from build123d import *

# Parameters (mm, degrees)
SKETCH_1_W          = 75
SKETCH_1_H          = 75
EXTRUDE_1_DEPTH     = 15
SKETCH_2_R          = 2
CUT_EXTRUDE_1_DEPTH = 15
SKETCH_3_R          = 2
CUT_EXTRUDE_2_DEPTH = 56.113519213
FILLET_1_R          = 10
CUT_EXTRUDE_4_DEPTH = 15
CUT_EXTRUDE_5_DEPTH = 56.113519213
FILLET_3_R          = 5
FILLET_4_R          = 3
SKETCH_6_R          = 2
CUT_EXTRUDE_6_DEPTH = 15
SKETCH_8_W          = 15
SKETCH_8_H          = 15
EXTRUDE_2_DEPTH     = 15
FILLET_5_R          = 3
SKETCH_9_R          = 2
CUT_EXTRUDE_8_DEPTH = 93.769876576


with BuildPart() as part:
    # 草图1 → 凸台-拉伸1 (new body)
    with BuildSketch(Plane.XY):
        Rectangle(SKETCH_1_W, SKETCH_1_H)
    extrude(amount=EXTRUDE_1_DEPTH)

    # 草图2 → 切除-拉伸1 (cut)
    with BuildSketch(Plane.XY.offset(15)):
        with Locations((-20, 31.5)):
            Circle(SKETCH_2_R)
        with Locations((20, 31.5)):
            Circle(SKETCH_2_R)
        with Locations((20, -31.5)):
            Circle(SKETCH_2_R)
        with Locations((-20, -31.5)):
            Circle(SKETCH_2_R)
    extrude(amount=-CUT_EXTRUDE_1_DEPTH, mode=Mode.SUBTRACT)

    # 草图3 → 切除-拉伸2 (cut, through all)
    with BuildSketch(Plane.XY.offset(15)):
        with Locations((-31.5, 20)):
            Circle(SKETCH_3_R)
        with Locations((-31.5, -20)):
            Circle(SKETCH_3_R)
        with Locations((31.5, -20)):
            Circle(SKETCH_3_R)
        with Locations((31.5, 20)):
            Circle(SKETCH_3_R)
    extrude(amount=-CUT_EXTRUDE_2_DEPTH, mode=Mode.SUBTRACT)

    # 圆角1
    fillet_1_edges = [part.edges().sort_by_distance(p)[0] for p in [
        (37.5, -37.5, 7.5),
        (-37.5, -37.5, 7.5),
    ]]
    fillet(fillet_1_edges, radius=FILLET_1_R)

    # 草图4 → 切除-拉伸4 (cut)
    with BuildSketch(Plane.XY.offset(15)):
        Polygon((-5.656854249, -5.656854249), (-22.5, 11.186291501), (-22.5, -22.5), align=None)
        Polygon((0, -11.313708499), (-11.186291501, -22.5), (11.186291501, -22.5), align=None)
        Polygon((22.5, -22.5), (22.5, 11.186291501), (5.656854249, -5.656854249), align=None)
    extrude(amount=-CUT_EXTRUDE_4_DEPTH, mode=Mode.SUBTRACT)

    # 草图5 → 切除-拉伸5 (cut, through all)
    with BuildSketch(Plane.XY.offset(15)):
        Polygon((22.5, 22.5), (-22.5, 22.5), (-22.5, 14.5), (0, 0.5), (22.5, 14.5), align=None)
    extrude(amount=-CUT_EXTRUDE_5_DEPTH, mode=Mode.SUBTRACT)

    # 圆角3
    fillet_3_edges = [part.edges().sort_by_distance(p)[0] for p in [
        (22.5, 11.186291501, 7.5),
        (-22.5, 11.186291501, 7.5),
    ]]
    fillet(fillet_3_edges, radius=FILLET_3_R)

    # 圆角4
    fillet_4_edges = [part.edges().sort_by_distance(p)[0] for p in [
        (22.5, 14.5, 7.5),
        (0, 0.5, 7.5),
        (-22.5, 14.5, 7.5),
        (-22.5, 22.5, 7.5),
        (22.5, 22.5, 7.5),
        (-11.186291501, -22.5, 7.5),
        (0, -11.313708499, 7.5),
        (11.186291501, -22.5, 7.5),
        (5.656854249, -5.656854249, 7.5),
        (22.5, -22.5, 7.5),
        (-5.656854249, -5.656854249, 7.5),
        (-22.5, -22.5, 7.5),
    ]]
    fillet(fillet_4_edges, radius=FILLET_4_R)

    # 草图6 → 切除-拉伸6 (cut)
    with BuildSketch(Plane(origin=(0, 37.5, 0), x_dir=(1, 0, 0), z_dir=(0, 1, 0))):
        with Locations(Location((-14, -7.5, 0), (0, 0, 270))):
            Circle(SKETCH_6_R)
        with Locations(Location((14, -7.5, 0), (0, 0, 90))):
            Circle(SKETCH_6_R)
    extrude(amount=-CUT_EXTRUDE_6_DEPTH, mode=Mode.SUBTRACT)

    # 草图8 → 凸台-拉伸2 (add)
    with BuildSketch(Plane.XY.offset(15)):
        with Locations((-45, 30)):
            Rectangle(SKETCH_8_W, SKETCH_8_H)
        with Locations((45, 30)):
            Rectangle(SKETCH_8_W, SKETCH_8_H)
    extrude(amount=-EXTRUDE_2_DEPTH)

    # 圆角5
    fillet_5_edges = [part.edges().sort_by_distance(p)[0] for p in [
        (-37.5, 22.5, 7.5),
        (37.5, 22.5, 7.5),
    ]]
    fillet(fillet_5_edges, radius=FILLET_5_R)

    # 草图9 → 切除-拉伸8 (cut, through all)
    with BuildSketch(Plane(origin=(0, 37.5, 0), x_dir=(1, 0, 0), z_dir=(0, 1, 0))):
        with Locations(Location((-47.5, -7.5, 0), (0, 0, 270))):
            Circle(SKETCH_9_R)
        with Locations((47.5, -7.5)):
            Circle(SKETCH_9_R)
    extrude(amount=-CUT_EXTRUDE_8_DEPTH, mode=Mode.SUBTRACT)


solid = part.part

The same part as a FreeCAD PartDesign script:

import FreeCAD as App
import Part
import Sketcher
from FreeCAD import Vector


def edges_at(feature, points):
    """Names of the edges that pass closest to the given points."""
    edges = feature.Shape.Edges
    near = lambda p: min(range(len(edges)), key=lambda i: edges[i].distToShape(Part.Vertex(*p))[0])
    return sorted({f"Edge{near(p) + 1}" for p in points})


def add_polygon(sketch, points):
    """Adds a closed chain of lines whose ends are joined by coincident constraints."""
    first, n = sketch.GeometryCount, len(points)
    for a, b in zip(points, points[1:] + points[:1]):
        sketch.addGeometry(Part.LineSegment(App.Vector(*a, 0), App.Vector(*b, 0)), False)
    for i in range(n):
        sketch.addConstraint(Sketcher.Constraint("Coincident", first + i, 2, first + (i + 1) % n, 1))

doc = App.newDocument("Part")
body = doc.addObject("PartDesign::Body", "Body")

# Sketch on XY plane
sketch1 = body.newObject("Sketcher::SketchObject", "Sketch")
sketch1.AttachmentSupport = (doc.getObject("XY_Plane"), [""])
sketch1.MapMode = "FlatFace"
add_polygon(sketch1, [(-38, 38), (-38, -38), (38, -38), (38, 38)])  # lines 0-3
sketch1.addConstraint([
    Sketcher.Constraint("Vertical", 0),
    Sketcher.Constraint("Horizontal", 1),
    Sketcher.Constraint("Vertical", 2),
    Sketcher.Constraint("Horizontal", 3),
    Sketcher.Constraint("Symmetric", 0, 2, 2, 2, -1, 1),
    Sketcher.Constraint("Equal", 3, 0),
    Sketcher.Constraint("DistanceX", 1, 1, 1, 2, 75.0),
])
pad1 = body.newObject("PartDesign::Pad", "Pad")
pad1.Profile = sketch1
pad1.Length = 15

# Sketch on XY plane
sketch2 = body.newObject("Sketcher::SketchObject", "Sketch001")
sketch2.AttachmentSupport = (doc.getObject("XY_Plane"), [""])
sketch2.MapMode = "FlatFace"
sketch2.AttachmentOffset = App.Placement(Vector(0, 0, 15), App.Rotation())
sketch2.addGeometry([
    Part.Circle(Vector(-20, 31.5, 0), Vector(0, 0, 1), 2),
    Part.Circle(Vector(20, 31.5, 0), Vector(0, 0, 1), 2),
    Part.Circle(Vector(20, -31.5, 0), Vector(0, 0, 1), 2),
    Part.Circle(Vector(-20, -31.5, 0), Vector(0, 0, 1), 2),
], False)
sketch2.addConstraint([
    Sketcher.Constraint("Equal", 0, 1),
    Sketcher.Constraint("Equal", 1, 2),
    Sketcher.Constraint("Equal", 2, 3),
    Sketcher.Constraint("Symmetric", 0, 3, 2, 3, -1, 1),
    Sketcher.Constraint("Symmetric", 1, 3, 3, 3, -1, 1),
    Sketcher.Constraint("Symmetric", 0, 3, 1, 3, -2),
    Sketcher.Constraint("Diameter", 0, 4.0),
    Sketcher.Constraint("DistanceX", 0, 3, -1, 1, 20.0),
    Sketcher.Constraint("DistanceY", 2, 3, 1, 3, 63.0),
])
pocket1 = body.newObject("PartDesign::Pocket", "Pocket")
pocket1.Profile = sketch2
pocket1.Length = 15

# Sketch on XY plane
sketch3 = body.newObject("Sketcher::SketchObject", "Sketch002")
sketch3.AttachmentSupport = (doc.getObject("XY_Plane"), [""])
sketch3.MapMode = "FlatFace"
sketch3.AttachmentOffset = App.Placement(Vector(0, 0, 15), App.Rotation())
sketch3.addGeometry([
    Part.Circle(Vector(-31.5, 20, 0), Vector(0, 0, 1), 2),
    Part.Circle(Vector(-31.5, -20, 0), Vector(0, 0, 1), 2),
    Part.Circle(Vector(31.5, -20, 0), Vector(0, 0, 1), 2),
    Part.Circle(Vector(31.5, 20, 0), Vector(0, 0, 1), 2),
], False)
sketch3.addConstraint([
    Sketcher.Constraint("Equal", 0, 1),
    Sketcher.Constraint("Equal", 1, 2),
    Sketcher.Constraint("Equal", 2, 3),
    Sketcher.Constraint("Symmetric", 0, 3, 2, 3, -1, 1),
    Sketcher.Constraint("Symmetric", 1, 3, 3, 3, -1, 1),
    Sketcher.Constraint("Symmetric", 1, 3, 2, 3, -2),
    Sketcher.Constraint("Diameter", 0, 4.0),
    Sketcher.Constraint("DistanceY", -1, 1, 0, 3, 20.0),
    Sketcher.Constraint("DistanceX", 1, 3, 2, 3, 63.0),
])
pocket2 = body.newObject("PartDesign::Pocket", "Pocket001")
pocket2.Profile = sketch3
pocket2.Type = "ThroughAll"
doc.recompute()

fillet = body.newObject("PartDesign::Fillet", "Fillet")
fillet.Base = (pocket2, edges_at(pocket2, [(37.5, -37.5, 7.5), (-37.5, -37.5, 7.5)]))
fillet.Radius = 10

# Sketch on XY plane
sketch4 = body.newObject("Sketcher::SketchObject", "Sketch003")
sketch4.AttachmentSupport = (doc.getObject("XY_Plane"), [""])
sketch4.MapMode = "FlatFace"
sketch4.AttachmentOffset = App.Placement(Vector(0, 0, 15), App.Rotation())
add_polygon(sketch4, [(-6, -6), (-22, 11), (-22, -22)])  # lines 0-2
add_polygon(sketch4, [(0, -11), (-11, -22), (11, -22)])  # lines 3-5
add_polygon(sketch4, [(22, -22), (22, 11), (6, -6)])  # lines 6-8
sketch4.addConstraint([
    Sketcher.Constraint("Vertical", 1),
    Sketcher.Constraint("Horizontal", 4),
    Sketcher.Constraint("Vertical", 6),
    Sketcher.Constraint("Symmetric", 0, 2, 6, 2, -2),
    Sketcher.Constraint("Symmetric", 2, 2, 7, 2, -2),
    Sketcher.Constraint("PointOnObject", 5, 2, -2),
    Sketcher.Constraint("Perpendicular", 0, 2),
    Sketcher.Constraint("Parallel", 2, 3),
    Sketcher.Constraint("Perpendicular", 3, 5),
    Sketcher.Constraint("Perpendicular", 5, 7),
    Sketcher.Constraint("Perpendicular", 7, 8),
    Sketcher.Constraint("Horizontal", 1, 2, 3, 2),
    Sketcher.Constraint("DistanceX", 0, 2, 6, 2, 45.0),
    Sketcher.Constraint("DistanceY", 1, 2, -1, 1, 22.5),
    Sketcher.Constraint("DistanceY", 5, 2, 0, 2, 22.5),
    Sketcher.Constraint("DistanceY", 1, 2, 1, 1, 33.686292),
])
pocket3 = body.newObject("PartDesign::Pocket", "Pocket002")
pocket3.Profile = sketch4
pocket3.Length = 15

# Sketch on XY plane
sketch5 = body.newObject("Sketcher::SketchObject", "Sketch004")
sketch5.AttachmentSupport = (doc.getObject("XY_Plane"), [""])
sketch5.MapMode = "FlatFace"
sketch5.AttachmentOffset = App.Placement(Vector(0, 0, 15), App.Rotation())
add_polygon(sketch5, [(22, 22), (-22, 22), (-22, 14), (0, 0), (22, 14)])  # lines 0-4
sketch5.addConstraint([
    Sketcher.Constraint("Horizontal", 0),
    Sketcher.Constraint("Vertical", 1),
    Sketcher.Constraint("Vertical", 4),
    Sketcher.Constraint("Symmetric", 1, 2, 3, 2, -2),
    Sketcher.Constraint("PointOnObject", 2, 2, -2),
    Sketcher.Constraint("DistanceX", 0, 2, 0, 1, 45.0),
    Sketcher.Constraint("DistanceY", 1, 2, 1, 1, 8.0),
    Sketcher.Constraint("DistanceY", 2, 2, 1, 2, 14.0),
    Sketcher.Constraint("DistanceY", -1, 1, 0, 2, 22.5),
])
pocket4 = body.newObject("PartDesign::Pocket", "Pocket003")
pocket4.Profile = sketch5
pocket4.Type = "ThroughAll"
doc.recompute()

fillet2 = body.newObject("PartDesign::Fillet", "Fillet001")
fillet2.Base = (pocket4, edges_at(pocket4, [(22.5, 11.186, 7.5), (-22.5, 11.186, 7.5)]))
fillet2.Radius = 5
doc.recompute()

fillet3 = body.newObject("PartDesign::Fillet", "Fillet002")
fillet3.Base = (fillet2, edges_at(fillet2, [
    (22.5, 14.5, 7.5),
    (0, 0.5, 7.5),
    (-22.5, 14.5, 7.5),
    (-22.5, 22.5, 7.5),
    (22.5, 22.5, 7.5),
    (-11.186, -22.5, 7.5),
    (0, -11.314, 7.5),
    (11.186, -22.5, 7.5),
    (5.657, -5.657, 7.5),
    (22.5, -22.5, 7.5),
    (-5.657, -5.657, 7.5),
    (-22.5, -22.5, 7.5),
]))
fillet3.Radius = 3

# Sketch on XZ plane
sketch6 = body.newObject("Sketcher::SketchObject", "Sketch005")
sketch6.AttachmentSupport = (doc.getObject("XZ_Plane"), [""])
sketch6.MapMode = "FlatFace"
sketch6.AttachmentOffset = App.Placement(Vector(0, 0, -37.5), App.Rotation())
sketch6.addGeometry([
    Part.Circle(Vector(-14, 7.5, 0), Vector(0, 0, 1), 2),
    Part.Circle(Vector(14, 7.5, 0), Vector(0, 0, 1), 2),
], False)
sketch6.addConstraint([
    Sketcher.Constraint("Equal", 0, 1),
    Sketcher.Constraint("Symmetric", 0, 3, 1, 3, -2),
    Sketcher.Constraint("Diameter", 0, 4.0),
    Sketcher.Constraint("DistanceX", 0, 3, -1, 1, 14.0),
    Sketcher.Constraint("DistanceY", -1, 1, 0, 3, 7.5),
])
pocket5 = body.newObject("PartDesign::Pocket", "Pocket004")
pocket5.Profile = sketch6
pocket5.Length = 15
pocket5.Reversed = True

# Sketch on XY plane
sketch7 = body.newObject("Sketcher::SketchObject", "Sketch006")
sketch7.AttachmentSupport = (doc.getObject("XY_Plane"), [""])
sketch7.MapMode = "FlatFace"
sketch7.AttachmentOffset = App.Placement(Vector(0, 0, 15), App.Rotation())
add_polygon(sketch7, [(-52, 38), (-52, 22), (-38, 22), (-38, 38)])  # lines 0-3
add_polygon(sketch7, [(38, 38), (38, 22), (52, 22), (52, 38)])  # lines 4-7
sketch7.addConstraint([
    Sketcher.Constraint("Vertical", 0),
    Sketcher.Constraint("Horizontal", 1),
    Sketcher.Constraint("Vertical", 2),
    Sketcher.Constraint("Horizontal", 3),
    Sketcher.Constraint("Vertical", 4),
    Sketcher.Constraint("Horizontal", 5),
    Sketcher.Constraint("Vertical", 6),
    Sketcher.Constraint("Horizontal", 7),
    Sketcher.Constraint("Symmetric", 1, 2, 4, 2, -2),
    Sketcher.Constraint("Symmetric", 3, 2, 6, 2, -2),
    Sketcher.Constraint("Equal", 7, 0),
    Sketcher.Constraint("DistanceX", 1, 1, 1, 2, 15.0),
    Sketcher.Constraint("DistanceX", 1, 2, 4, 2, 75.0),
    Sketcher.Constraint("DistanceY", -1, 1, 0, 2, 22.5),
])
pad2 = body.newObject("PartDesign::Pad", "Pad001")
pad2.Profile = sketch7
pad2.Length = 15
pad2.Reversed = True
doc.recompute()

fillet4 = body.newObject("PartDesign::Fillet", "Fillet003")
fillet4.Base = (pad2, edges_at(pad2, [(-37.5, 22.5, 7.5), (37.5, 22.5, 7.5)]))
fillet4.Radius = 3

# Sketch on XZ plane
sketch8 = body.newObject("Sketcher::SketchObject", "Sketch007")
sketch8.AttachmentSupport = (doc.getObject("XZ_Plane"), [""])
sketch8.MapMode = "FlatFace"
sketch8.AttachmentOffset = App.Placement(Vector(0, 0, -37.5), App.Rotation())
sketch8.addGeometry([
    Part.Circle(Vector(-47.5, 7.5, 0), Vector(0, 0, 1), 2),
    Part.Circle(Vector(47.5, 7.5, 0), Vector(0, 0, 1), 2),
], False)
sketch8.addConstraint([
    Sketcher.Constraint("Equal", 0, 1),
    Sketcher.Constraint("Symmetric", 0, 3, 1, 3, -2),
    Sketcher.Constraint("Diameter", 0, 4.0),
    Sketcher.Constraint("DistanceX", 0, 3, 1, 3, 95.0),
    Sketcher.Constraint("DistanceY", -1, 1, 0, 3, 7.5),
])
pocket6 = body.newObject("PartDesign::Pocket", "Pocket005")
pocket6.Profile = sketch8
pocket6.Type = "ThroughAll"
pocket6.Reversed = True

doc.recompute()
